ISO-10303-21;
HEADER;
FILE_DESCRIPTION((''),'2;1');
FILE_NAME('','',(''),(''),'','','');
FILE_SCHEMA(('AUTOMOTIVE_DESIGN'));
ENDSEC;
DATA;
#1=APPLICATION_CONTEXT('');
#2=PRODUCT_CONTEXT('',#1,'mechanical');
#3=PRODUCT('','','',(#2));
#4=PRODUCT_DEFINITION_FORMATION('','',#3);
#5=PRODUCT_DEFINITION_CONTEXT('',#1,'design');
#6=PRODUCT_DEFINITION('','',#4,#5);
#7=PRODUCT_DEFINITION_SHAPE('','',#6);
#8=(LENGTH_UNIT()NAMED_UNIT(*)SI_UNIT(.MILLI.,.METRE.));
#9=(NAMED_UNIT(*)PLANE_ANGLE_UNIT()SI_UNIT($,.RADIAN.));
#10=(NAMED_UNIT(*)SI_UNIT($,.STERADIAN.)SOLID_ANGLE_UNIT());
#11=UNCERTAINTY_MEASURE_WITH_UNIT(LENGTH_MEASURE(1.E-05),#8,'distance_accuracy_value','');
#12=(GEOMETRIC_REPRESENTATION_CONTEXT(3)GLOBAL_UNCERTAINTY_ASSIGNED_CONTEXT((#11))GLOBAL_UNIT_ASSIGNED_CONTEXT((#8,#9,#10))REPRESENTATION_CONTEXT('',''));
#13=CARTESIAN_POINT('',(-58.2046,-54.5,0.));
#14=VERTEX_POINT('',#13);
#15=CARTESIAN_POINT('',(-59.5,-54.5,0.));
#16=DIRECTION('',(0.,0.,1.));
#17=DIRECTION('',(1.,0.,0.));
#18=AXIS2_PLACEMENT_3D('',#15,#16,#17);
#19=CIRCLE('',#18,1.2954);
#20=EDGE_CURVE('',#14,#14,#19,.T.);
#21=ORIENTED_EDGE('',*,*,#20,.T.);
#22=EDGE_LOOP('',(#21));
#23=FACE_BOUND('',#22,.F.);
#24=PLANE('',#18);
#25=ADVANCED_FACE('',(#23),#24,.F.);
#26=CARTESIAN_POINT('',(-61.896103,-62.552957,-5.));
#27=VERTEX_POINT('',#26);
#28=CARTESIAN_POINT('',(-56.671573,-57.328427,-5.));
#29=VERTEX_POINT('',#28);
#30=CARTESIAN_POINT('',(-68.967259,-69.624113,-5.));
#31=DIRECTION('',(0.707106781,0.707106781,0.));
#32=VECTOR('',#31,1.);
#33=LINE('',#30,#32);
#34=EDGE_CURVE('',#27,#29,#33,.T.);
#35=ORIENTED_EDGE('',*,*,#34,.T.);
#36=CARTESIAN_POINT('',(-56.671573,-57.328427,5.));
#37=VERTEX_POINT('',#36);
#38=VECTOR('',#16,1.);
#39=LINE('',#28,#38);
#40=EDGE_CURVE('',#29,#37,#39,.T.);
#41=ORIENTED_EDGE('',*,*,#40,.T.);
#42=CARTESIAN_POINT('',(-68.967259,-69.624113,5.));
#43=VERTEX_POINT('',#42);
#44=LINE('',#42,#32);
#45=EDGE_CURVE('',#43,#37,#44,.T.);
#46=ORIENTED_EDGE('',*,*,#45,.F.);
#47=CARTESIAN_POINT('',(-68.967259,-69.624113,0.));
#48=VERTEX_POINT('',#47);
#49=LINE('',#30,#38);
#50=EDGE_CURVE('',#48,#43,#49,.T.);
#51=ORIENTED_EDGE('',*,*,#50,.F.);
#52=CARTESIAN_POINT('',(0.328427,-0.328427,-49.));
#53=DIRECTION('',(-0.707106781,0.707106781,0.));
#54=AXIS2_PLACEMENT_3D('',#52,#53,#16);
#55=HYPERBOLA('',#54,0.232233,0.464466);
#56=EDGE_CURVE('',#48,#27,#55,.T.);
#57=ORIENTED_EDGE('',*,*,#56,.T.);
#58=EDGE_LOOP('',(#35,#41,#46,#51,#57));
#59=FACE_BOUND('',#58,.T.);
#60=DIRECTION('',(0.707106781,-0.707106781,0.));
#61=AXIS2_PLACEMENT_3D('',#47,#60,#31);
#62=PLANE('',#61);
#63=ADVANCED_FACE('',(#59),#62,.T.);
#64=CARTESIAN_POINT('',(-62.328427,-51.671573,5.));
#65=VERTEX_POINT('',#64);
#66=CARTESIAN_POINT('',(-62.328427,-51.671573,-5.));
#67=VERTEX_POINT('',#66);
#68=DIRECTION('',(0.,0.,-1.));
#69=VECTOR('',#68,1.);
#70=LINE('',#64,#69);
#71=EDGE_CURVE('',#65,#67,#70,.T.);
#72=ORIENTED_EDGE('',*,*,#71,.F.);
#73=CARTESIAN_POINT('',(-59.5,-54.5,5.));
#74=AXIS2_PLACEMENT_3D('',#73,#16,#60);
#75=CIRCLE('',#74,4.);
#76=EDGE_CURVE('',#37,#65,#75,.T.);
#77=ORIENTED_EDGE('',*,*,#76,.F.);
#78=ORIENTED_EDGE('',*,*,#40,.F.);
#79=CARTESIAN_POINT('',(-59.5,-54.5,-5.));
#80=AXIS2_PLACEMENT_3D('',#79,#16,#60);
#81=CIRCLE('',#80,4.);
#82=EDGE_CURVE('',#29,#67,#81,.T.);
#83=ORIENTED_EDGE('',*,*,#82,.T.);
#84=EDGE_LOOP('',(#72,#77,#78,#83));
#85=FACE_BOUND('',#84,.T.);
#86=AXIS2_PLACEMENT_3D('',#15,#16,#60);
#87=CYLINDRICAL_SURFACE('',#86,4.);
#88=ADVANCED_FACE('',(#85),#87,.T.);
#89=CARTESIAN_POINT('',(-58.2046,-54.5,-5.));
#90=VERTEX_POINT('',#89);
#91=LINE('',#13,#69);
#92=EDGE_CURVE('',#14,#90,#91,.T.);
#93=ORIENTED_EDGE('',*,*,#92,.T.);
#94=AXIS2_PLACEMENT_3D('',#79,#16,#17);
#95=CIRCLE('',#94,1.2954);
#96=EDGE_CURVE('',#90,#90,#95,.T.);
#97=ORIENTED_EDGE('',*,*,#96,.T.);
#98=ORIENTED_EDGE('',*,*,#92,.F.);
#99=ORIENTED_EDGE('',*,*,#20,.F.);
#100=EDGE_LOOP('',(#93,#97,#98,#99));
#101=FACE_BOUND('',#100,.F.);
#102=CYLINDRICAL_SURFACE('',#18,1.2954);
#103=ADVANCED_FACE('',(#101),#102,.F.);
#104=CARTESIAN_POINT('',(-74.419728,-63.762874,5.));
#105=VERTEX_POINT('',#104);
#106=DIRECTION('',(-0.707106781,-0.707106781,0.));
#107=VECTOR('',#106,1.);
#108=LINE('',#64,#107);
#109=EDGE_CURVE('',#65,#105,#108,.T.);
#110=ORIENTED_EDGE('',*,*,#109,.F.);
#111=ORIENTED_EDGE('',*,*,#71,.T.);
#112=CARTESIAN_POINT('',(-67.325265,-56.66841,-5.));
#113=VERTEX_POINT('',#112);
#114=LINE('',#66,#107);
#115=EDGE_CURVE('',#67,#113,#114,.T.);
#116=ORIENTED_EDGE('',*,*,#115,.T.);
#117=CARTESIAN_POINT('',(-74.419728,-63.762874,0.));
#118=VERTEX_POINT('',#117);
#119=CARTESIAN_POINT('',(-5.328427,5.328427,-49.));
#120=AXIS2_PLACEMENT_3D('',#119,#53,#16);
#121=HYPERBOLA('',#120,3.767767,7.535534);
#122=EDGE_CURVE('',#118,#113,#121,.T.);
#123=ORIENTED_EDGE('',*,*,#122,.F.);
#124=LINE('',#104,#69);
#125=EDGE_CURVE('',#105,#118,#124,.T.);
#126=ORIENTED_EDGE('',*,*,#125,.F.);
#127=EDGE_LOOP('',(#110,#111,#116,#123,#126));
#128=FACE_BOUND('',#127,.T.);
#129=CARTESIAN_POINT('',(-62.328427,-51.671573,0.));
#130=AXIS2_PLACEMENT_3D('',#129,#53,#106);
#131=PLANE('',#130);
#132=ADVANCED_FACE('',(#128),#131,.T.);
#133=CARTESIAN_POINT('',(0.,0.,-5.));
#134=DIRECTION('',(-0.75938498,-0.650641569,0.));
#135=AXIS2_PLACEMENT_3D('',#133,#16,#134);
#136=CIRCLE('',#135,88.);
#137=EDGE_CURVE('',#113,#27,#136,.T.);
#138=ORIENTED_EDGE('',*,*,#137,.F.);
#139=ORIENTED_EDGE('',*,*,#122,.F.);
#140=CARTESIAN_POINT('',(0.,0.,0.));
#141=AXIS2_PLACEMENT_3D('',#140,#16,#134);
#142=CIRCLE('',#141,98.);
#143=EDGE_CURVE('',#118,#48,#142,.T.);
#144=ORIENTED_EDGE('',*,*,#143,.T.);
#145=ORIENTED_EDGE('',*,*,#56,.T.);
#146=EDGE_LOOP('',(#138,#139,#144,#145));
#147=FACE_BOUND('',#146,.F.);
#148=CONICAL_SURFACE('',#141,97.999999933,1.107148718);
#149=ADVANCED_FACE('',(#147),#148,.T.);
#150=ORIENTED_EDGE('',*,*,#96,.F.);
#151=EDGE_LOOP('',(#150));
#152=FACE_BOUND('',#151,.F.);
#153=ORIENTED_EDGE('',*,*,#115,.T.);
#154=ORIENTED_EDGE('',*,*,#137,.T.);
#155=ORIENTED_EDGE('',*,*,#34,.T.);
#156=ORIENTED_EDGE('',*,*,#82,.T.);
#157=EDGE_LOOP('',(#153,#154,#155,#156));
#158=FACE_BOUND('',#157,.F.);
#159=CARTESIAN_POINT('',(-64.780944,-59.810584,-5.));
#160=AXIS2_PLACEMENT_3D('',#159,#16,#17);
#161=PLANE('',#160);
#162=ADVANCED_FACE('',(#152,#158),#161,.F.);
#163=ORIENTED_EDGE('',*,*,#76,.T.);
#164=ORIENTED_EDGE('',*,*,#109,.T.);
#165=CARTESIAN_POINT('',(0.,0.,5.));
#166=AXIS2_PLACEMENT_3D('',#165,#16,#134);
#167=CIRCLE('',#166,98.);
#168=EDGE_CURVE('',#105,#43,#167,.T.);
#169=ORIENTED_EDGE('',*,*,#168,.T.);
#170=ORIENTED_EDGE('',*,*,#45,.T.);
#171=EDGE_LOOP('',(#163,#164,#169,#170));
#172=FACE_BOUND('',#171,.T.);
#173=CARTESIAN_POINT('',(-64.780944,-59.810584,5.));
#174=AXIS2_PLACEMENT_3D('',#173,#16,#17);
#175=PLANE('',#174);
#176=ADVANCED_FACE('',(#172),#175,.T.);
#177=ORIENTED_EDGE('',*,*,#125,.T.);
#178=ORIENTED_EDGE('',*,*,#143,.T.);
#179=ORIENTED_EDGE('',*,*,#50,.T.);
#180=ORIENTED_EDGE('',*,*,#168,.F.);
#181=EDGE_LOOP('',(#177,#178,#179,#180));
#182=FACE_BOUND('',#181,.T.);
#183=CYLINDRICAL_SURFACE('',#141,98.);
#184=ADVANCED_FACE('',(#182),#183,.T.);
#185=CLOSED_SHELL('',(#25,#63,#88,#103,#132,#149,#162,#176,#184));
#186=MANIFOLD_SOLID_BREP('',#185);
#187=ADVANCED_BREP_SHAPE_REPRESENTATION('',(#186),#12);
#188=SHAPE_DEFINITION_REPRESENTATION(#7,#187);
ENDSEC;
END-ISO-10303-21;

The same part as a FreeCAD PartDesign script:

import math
import FreeCAD as App
import Part
import Sketcher
Q = App.Units.Quantity


def edges_at(feature, points):
    """Names of the edges that pass closest to the given points."""
    edges = feature.Shape.Edges
    near = lambda p: min(range(len(edges)), key=lambda i: edges[i].distToShape(Part.Vertex(*p))[0])
    return sorted({f"Edge{near(p) + 1}" for p in points})

doc = App.newDocument("Part")
params = doc.addObject("Spreadsheet::Sheet", "Params")
for row, (alias, value) in enumerate([
    ("sketch1_radius", "98 mm"),
    ("sketch1_radius2", "4 mm"),
    ("pad1_length", "5 mm"),
    ("sketch2_radius", "98 mm"),
    ("sketch2_radius2", "4 mm"),
    ("pad2_length", "5 mm"),
    ("chamfer_size", "5 mm"),
    ("chamfer_size2", "10 mm"),
], start=1):
    params.set(f"A{row}", alias)
    params.set(f"B{row}", "=" + value)
    params.setAlias(f"B{row}", alias)

body = doc.addObject("PartDesign::Body", "Body")

# Sketch on XY plane
sketch1 = doc.addObject("Sketcher::SketchObject", "Sketch")
body.addObject(sketch1)
sketch1.AttachmentSupport = (doc.XY_Plane, [""])
sketch1.MapMode = "FlatFace"
sketch1.addGeometry(Part.ArcOfCircle(Part.Circle(App.Vector(0, 0, 0), App.Vector(0, 0, 1), 98), math.radians(-139.41), math.radians(-134.73)), False)
sketch1.addGeometry(Part.LineSegment(App.Vector(-69, -69.6, 0), App.Vector(-56.7, -57.3, 0)), False)
sketch1.addGeometry(Part.ArcOfCircle(Part.Circle(App.Vector(-59.5, -54.5, 0), App.Vector(0, 0, 1), 4), math.radians(-45), math.radians(135)), False)
sketch1.addGeometry(Part.LineSegment(App.Vector(-62.3, -51.7, 0), App.Vector(-74.4, -63.8, 0)), False)
sketch1.addConstraint(Sketcher.Constraint("Coincident", 0, 2, 1, 1))
sketch1.addConstraint(Sketcher.Constraint("Tangent", 1, 2, 2, 1))
sketch1.addConstraint(Sketcher.Constraint("Tangent", 2, 2, 3, 1))
sketch1.addConstraint(Sketcher.Constraint("Coincident", 3, 2, 0, 1))
sketch1.addConstraint(Sketcher.Constraint("Coincident", 0, 3, -1, 1))
sketch1.addConstraint(Sketcher.Constraint("Parallel", 1, 3))
sketch1.addConstraint(Sketcher.Constraint("Radius", 0, Q("98 mm")))
sketch1.addConstraint(Sketcher.Constraint("Radius", 2, Q("4 mm")))
sketch1.addConstraint(Sketcher.Constraint("Angle", 1, Q("45 deg")))
sketch1.addConstraint(Sketcher.Constraint("DistanceX", 2, 3, -1, 1, Q("59.5 mm")))
sketch1.addConstraint(Sketcher.Constraint("DistanceY", 2, 3, -1, 1, Q("54.5 mm")))
sketch1.setExpression("Constraints[6]", "Params.sketch1_radius")
sketch1.setExpression("Constraints[7]", "Params.sketch1_radius2")
pad1 = doc.addObject("PartDesign::Pad", "Pad")
body.addObject(pad1)
pad1.Profile = sketch1
pad1.setExpression("Length", "Params.pad1_length")

# Sketch on XY plane
sketch2 = doc.addObject("Sketcher::SketchObject", "Sketch001")
body.addObject(sketch2)
sketch2.AttachmentSupport = (doc.XY_Plane, [""])
sketch2.MapMode = "FlatFace"
sketch2.addGeometry(Part.ArcOfCircle(Part.Circle(App.Vector(0, 0, 0), App.Vector(0, 0, 1), 98), math.radians(-139.41), math.radians(-134.73)), False)
sketch2.addGeometry(Part.LineSegment(App.Vector(-69, -69.6, 0), App.Vector(-56.7, -57.3, 0)), False)
sketch2.addGeometry(Part.ArcOfCircle(Part.Circle(App.Vector(-59.5, -54.5, 0), App.Vector(0, 0, 1), 4), math.radians(-45), math.radians(135)), False)
sketch2.addGeometry(Part.LineSegment(App.Vector(-62.3, -51.7, 0), App.Vector(-74.4, -63.8, 0)), False)
sketch2.addConstraint(Sketcher.Constraint("Coincident", 0, 2, 1, 1))
sketch2.addConstraint(Sketcher.Constraint("Tangent", 1, 2, 2, 1))
sketch2.addConstraint(Sketcher.Constraint("Tangent", 2, 2, 3, 1))
sketch2.addConstraint(Sketcher.Constraint("Coincident", 3, 2, 0, 1))
sketch2.addConstraint(Sketcher.Constraint("Coincident", 0, 3, -1, 1))
sketch2.addConstraint(Sketcher.Constraint("Parallel", 1, 3))
sketch2.addConstraint(Sketcher.Constraint("Radius", 0, Q("98 mm")))
sketch2.addConstraint(Sketcher.Constraint("Radius", 2, Q("4 mm")))
sketch2.addConstraint(Sketcher.Constraint("Angle", 1, Q("45 deg")))
sketch2.addConstraint(Sketcher.Constraint("DistanceX", 2, 3, -1, 1, Q("59.5 mm")))
sketch2.addConstraint(Sketcher.Constraint("DistanceY", 2, 3, -1, 1, Q("54.5 mm")))
sketch2.setExpression("Constraints[6]", "Params.sketch2_radius")
sketch2.setExpression("Constraints[7]", "Params.sketch2_radius2")
pad2 = doc.addObject("PartDesign::Pad", "Pad001")
body.addObject(pad2)
pad2.Profile = sketch2
pad2.setExpression("Length", "Params.pad2_length")
pad2.Reversed = True
doc.recompute()

chamfer = doc.addObject("PartDesign::Chamfer", "Chamfer")
body.addObject(chamfer)
chamfer.Base = (pad2, edges_at(pad2, [(-71.753, -66.749, -5)]))
chamfer.ChamferType = "Two distances"
chamfer.setExpression("Size", "Params.chamfer_size")
chamfer.setExpression("Size2", "Params.chamfer_size2")
chamfer.FlipDirection = True

# Sketch on XY plane
sketch3 = doc.addObject("Sketcher::SketchObject", "Sketch002")
body.addObject(sketch3)
sketch3.AttachmentSupport = (doc.XY_Plane, [""])
sketch3.MapMode = "FlatFace"
sketch3.addGeometry(Part.Circle(App.Vector(-59.5, -54.5, 0), App.Vector(0, 0, 1), 1.3), False)
sketch3.addConstraint(Sketcher.Constraint("Diameter", 0, Q("2.5908 mm")))
sketch3.addConstraint(Sketcher.Constraint("DistanceX", 0, 3, -1, 1, Q("59.5 mm")))
sketch3.addConstraint(Sketcher.Constraint("DistanceY", 0, 3, -1, 1, Q("54.5 mm")))
pocket1 = doc.addObject("PartDesign::Pocket", "Pocket")
body.addObject(pocket1)
pocket1.Profile = sketch3
pocket1.Type = "ThroughAll"

doc.recompute()
